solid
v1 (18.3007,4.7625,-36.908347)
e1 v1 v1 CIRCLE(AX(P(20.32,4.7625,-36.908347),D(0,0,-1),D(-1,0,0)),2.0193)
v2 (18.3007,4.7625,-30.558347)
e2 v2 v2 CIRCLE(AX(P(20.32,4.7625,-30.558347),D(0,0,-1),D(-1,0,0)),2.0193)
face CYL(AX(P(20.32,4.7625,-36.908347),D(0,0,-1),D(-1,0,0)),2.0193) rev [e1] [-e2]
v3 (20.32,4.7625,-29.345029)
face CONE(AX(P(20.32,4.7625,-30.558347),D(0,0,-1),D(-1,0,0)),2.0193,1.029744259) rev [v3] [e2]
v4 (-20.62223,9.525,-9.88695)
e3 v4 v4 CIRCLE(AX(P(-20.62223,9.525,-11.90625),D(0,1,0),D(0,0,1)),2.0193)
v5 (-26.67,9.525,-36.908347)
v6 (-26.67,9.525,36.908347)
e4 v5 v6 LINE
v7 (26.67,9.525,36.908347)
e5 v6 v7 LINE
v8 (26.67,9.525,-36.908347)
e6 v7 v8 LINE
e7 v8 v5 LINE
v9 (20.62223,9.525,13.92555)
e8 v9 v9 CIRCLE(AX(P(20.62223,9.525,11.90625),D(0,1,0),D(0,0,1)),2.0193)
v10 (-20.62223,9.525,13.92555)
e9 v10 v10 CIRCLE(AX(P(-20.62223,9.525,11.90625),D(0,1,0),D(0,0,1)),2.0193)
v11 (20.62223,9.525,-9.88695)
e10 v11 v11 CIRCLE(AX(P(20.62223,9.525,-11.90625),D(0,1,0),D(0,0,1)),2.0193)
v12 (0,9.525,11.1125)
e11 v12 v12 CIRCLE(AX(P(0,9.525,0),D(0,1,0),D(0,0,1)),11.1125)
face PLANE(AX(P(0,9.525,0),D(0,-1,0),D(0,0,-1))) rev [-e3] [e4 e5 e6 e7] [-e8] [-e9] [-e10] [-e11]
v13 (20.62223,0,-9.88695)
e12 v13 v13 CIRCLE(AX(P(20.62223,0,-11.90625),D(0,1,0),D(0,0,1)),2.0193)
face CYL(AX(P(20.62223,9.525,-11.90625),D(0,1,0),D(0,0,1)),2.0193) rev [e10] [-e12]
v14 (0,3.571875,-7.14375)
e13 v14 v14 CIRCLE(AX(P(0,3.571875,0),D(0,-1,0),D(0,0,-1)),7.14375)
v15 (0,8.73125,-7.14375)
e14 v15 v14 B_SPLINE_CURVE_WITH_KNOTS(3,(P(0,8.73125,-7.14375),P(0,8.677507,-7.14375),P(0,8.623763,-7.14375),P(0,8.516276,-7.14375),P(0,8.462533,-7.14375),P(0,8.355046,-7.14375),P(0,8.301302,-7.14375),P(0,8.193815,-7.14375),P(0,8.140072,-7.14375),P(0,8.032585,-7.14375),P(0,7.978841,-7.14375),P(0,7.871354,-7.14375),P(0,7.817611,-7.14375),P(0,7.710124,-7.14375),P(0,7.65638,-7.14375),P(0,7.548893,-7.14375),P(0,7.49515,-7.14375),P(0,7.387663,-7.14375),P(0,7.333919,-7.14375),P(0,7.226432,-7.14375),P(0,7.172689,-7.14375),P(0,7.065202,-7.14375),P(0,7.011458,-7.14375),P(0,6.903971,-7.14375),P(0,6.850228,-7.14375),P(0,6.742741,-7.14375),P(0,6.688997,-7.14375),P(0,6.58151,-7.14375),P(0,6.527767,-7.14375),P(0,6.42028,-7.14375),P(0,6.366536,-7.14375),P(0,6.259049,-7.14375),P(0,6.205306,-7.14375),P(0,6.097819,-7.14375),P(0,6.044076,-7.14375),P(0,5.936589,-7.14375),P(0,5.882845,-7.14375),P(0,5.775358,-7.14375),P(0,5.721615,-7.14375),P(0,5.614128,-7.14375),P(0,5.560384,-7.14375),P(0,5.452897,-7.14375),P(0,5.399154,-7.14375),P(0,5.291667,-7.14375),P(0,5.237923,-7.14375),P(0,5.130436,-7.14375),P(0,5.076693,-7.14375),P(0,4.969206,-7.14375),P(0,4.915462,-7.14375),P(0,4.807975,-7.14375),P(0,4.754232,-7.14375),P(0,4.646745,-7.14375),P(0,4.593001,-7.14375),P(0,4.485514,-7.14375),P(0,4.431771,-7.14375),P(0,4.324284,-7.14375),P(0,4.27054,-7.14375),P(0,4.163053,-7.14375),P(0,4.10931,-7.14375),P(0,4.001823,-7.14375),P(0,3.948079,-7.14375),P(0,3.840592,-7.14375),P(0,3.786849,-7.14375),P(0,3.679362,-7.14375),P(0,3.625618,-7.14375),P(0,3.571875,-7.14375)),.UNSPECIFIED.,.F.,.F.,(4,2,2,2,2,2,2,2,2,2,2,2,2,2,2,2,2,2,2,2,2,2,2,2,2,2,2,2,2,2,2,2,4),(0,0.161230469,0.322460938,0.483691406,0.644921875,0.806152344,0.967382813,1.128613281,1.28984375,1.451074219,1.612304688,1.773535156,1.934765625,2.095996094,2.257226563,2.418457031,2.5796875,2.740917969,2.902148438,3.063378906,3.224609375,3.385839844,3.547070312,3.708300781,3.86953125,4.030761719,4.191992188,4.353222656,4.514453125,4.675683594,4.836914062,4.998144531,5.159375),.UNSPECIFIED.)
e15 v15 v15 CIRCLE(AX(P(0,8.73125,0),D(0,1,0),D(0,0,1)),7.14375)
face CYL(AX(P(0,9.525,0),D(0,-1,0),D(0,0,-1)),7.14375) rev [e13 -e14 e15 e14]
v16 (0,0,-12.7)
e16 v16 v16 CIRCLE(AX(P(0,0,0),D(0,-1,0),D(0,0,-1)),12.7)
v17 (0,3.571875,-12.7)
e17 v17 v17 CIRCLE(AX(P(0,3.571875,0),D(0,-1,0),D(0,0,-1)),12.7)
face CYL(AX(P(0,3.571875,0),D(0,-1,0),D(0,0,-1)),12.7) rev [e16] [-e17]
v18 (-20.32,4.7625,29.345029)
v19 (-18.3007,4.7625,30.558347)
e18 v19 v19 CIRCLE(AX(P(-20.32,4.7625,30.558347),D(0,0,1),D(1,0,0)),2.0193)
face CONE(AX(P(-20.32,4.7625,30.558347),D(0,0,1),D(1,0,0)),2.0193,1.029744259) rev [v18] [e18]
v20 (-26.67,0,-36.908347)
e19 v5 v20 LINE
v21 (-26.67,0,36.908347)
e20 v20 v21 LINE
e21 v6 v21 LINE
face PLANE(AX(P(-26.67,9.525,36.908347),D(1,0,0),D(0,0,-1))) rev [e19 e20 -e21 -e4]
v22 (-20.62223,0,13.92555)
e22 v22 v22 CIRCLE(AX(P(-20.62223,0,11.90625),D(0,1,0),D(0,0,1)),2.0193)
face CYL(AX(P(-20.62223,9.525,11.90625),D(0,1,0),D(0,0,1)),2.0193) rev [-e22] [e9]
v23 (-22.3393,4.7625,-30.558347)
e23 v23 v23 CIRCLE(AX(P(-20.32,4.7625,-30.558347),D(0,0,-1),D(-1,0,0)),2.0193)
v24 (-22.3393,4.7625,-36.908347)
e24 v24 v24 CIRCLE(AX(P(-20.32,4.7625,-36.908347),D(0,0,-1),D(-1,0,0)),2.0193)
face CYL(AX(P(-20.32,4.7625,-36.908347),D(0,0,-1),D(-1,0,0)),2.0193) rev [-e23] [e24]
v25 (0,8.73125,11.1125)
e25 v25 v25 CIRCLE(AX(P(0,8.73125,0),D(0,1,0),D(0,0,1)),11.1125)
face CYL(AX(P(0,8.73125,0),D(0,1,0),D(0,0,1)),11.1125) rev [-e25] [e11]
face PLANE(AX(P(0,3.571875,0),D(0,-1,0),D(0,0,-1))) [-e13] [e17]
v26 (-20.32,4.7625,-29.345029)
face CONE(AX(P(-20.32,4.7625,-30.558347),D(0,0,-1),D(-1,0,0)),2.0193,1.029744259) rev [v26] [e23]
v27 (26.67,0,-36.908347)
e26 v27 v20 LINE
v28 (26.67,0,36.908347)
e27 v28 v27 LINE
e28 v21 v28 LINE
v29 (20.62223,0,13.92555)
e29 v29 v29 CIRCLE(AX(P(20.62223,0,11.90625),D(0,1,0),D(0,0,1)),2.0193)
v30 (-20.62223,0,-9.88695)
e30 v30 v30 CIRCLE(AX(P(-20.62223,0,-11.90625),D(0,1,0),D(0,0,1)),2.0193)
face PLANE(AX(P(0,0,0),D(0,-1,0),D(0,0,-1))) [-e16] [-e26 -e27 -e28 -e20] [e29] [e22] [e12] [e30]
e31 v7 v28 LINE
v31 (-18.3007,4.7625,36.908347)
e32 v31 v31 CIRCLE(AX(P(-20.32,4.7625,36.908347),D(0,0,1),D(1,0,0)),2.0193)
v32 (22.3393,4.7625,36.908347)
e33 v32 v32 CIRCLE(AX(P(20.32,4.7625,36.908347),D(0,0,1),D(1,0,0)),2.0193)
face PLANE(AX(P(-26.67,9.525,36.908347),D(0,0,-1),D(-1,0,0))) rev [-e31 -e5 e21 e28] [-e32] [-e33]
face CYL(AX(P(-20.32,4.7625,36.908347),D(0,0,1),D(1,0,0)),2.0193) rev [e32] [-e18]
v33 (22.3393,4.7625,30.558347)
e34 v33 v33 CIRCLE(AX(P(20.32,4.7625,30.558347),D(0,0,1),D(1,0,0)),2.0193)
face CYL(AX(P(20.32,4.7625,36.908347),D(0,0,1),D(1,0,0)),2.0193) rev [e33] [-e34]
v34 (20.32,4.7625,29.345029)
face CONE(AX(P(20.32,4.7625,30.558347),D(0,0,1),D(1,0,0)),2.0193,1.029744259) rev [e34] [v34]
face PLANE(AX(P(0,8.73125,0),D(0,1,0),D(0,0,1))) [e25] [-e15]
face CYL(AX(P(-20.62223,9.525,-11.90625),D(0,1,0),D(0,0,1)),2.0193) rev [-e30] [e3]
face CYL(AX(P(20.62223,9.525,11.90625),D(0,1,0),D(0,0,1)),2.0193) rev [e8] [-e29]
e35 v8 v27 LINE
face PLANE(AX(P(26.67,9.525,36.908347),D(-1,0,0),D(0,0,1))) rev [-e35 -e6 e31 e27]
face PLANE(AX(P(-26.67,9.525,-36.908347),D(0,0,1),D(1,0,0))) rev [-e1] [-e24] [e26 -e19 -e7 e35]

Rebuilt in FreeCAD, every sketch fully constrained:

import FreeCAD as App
import Part
import Sketcher
Q = App.Units.Quantity


def add_polygon(sketch, points):
    """Adds a closed chain of lines whose ends are joined by coincident constraints."""
    first, n = sketch.GeometryCount, len(points)
    for a, b in zip(points, points[1:] + points[:1]):
        sketch.addGeometry(Part.LineSegment(App.Vector(*a, 0), App.Vector(*b, 0)), False)
    for i in range(n):
        sketch.addConstraint(Sketcher.Constraint("Coincident", first + i, 2, first + (i + 1) % n, 1))

doc = App.newDocument("Part")
body = doc.addObject("PartDesign::Body", "Body")

# Sketch on XZ plane
sketch1 = body.newObject("Sketcher::SketchObject", "Sketch")
sketch1.AttachmentSupport = (doc.getObject("XZ_Plane"), [""])
sketch1.MapMode = "FlatFace"
add_polygon(sketch1, [(-27, -37), (-27, 37), (27, 37), (27, -37)])  # lines 0-3
sketch1.addGeometry(Part.Circle(App.Vector(0, 0, 0), App.Vector(0, 0, 1), 7), False)  # 4
sketch1.addConstraint(Sketcher.Constraint("Vertical", 0))
sketch1.addConstraint(Sketcher.Constraint("Horizontal", 1))
sketch1.addConstraint(Sketcher.Constraint("Vertical", 2))
sketch1.addConstraint(Sketcher.Constraint("Horizontal", 3))
sketch1.addConstraint(Sketcher.Constraint("Coincident", 4, 3, -1, 1))
sketch1.addConstraint(Sketcher.Constraint("Symmetric", 0, 2, 2, 2, -1, 1))
sketch1.addConstraint(Sketcher.Constraint("Diameter", 4, Q("0.5625 in")))
sketch1.addConstraint(Sketcher.Constraint("DistanceX", 1, 1, 1, 2, Q("2.1 in")))
sketch1.addConstraint(Sketcher.Constraint("DistanceY", 0, 1, 0, 2, 73.816695))
pad1 = body.newObject("PartDesign::Pad", "Pad")
pad1.Profile = sketch1
pad1.Length = Q("0.375 in")
pad1.Reversed = True

# Sketch on XZ plane
sketch2 = body.newObject("Sketcher::SketchObject", "Sketch001")
sketch2.AttachmentSupport = (doc.getObject("XZ_Plane"), [""])
sketch2.MapMode = "FlatFace"
sketch2.AttachmentOffset = App.Placement(App.Vector(0, 0, -0.375 * 25.4), App.Rotation())
sketch2.addGeometry(Part.Circle(App.Vector(0, 0, 0), App.Vector(0, 0, 1), 11), False)
sketch2.addConstraint(Sketcher.Constraint("Coincident", 0, 3, -1, 1))
sketch2.addConstraint(Sketcher.Constraint("Diameter", 0, Q("0.875 in")))
pocket1 = body.newObject("PartDesign::Pocket", "Pocket")
pocket1.Profile = sketch2
pocket1.Length = Q("0.03125 in")
pocket1.Reversed = True

# Sketch on XZ plane
sketch3 = body.newObject("Sketcher::SketchObject", "Sketch002")
sketch3.AttachmentSupport = (doc.getObject("XZ_Plane"), [""])
sketch3.MapMode = "FlatFace"
sketch3.addGeometry(Part.Circle(App.Vector(0, 0, 0), App.Vector(0, 0, 1), 13), False)
sketch3.addConstraint(Sketcher.Constraint("Coincident", 0, 3, -1, 1))
sketch3.addConstraint(Sketcher.Constraint("Diameter", 0, Q("1 in")))
pocket2 = body.newObject("PartDesign::Pocket", "Pocket001")
pocket2.Profile = sketch3
pocket2.Length = Q("0.140625 in")

# Sketch on YZ plane
sketch4 = body.newObject("Sketcher::SketchObject", "Sketch003")
sketch4.AttachmentSupport = (doc.getObject("YZ_Plane"), [""])
sketch4.MapMode = "FlatFace"
sketch4.AttachmentOffset = App.Placement(App.Vector(0, 0, -0.8 * 25.4), App.Rotation())
add_polygon(sketch4, [(4.8, 29.3), (4.8, 36.9), (2.7, 36.9), (2.7, 30.6)])  # lines 0-3
sketch4.addGeometry(Part.LineSegment(App.Vector(4.8, 36.9, 0), App.Vector(4.8, 29.3, 0)), True)  # axis
sketch4.addConstraint(Sketcher.Constraint("Vertical", 0))
sketch4.addConstraint(Sketcher.Constraint("Horizontal", 1))
sketch4.addConstraint(Sketcher.Constraint("Vertical", 2))
sketch4.addConstraint(Sketcher.Constraint("Vertical", 4))
sketch4.addConstraint(Sketcher.Constraint("Coincident", 4, 1, 0, 2))
sketch4.addConstraint(Sketcher.Constraint("Equal", 0, 4))
sketch4.addConstraint(Sketcher.Constraint("Angle", 3, Q("-31 deg")))
sketch4.addConstraint(Sketcher.Constraint("DistanceY", 2, 2, 2, 1, Q("0.25 in")))
sketch4.addConstraint(Sketcher.Constraint("DistanceX", 1, 2, 1, 1, Q("0.0795 in")))
sketch4.addConstraint(Sketcher.Constraint("DistanceX", -1, 1, 0, 2, Q("0.1875 in")))
sketch4.addConstraint(Sketcher.Constraint("DistanceY", -1, 1, 3, 2, 29.345029))
groove = body.newObject("PartDesign::Groove", "Groove")
groove.Profile = sketch4
groove.ReferenceAxis = (sketch4, ["Axis0"])
groove.Angle = 360
doc.recompute()

linearpattern = body.newObject("PartDesign::LinearPattern", "LinearPattern")
linearpattern.Originals = [groove]
linearpattern.Direction = (doc.getObject("X_Axis"), [""])
linearpattern.Mode = "offset"
linearpattern.Offset = Q("1.6 in")
linearpattern.Occurrences = 2
body.Tip = linearpattern
doc.recompute()

mirrored = body.newObject("PartDesign::Mirrored", "Mirrored")
mirrored.Originals = [groove]
mirrored.MirrorPlane = (doc.getObject("XY_Plane"), [""])
body.Tip = mirrored

# Sketch on YZ plane
sketch5 = body.newObject("Sketcher::SketchObject", "Sketch004")
sketch5.AttachmentSupport = (doc.getObject("YZ_Plane"), [""])
sketch5.MapMode = "FlatFace"
sketch5.AttachmentOffset = App.Placement(App.Vector(0, 0, 0.8 * 25.4), App.Rotation())
add_polygon(sketch5, [(4.8, -36.9), (4.8, -29.3), (2.7, -30.6), (2.7, -36.9)])  # lines 0-3
sketch5.addGeometry(Part.LineSegment(App.Vector(4.8, -29.3, 0), App.Vector(4.8, -36.9, 0)), True)  # axis
sketch5.addConstraint(Sketcher.Constraint("Vertical", 0))
sketch5.addConstraint(Sketcher.Constraint("Vertical", 2))
sketch5.addConstraint(Sketcher.Constraint("Horizontal", 3))
sketch5.addConstraint(Sketcher.Constraint("Vertical", 4))
sketch5.addConstraint(Sketcher.Constraint("Coincident", 4, 1, 0, 2))
sketch5.addConstraint(Sketcher.Constraint("Horizontal", 2, 2, 4, 2))
sketch5.addConstraint(Sketcher.Constraint("Angle", 1, Q("-149 deg")))
sketch5.addConstraint(Sketcher.Constraint("DistanceY", 2, 2, 2, 1, Q("0.25 in")))
sketch5.addConstraint(Sketcher.Constraint("DistanceX", 3, 1, 3, 2, Q("0.0795 in")))
sketch5.addConstraint(Sketcher.Constraint("DistanceX", -1, 1, 0, 2, Q("0.1875 in")))
sketch5.addConstraint(Sketcher.Constraint("DistanceY", 0, 2, -1, 1, 29.345029))
groove2 = body.newObject("PartDesign::Groove", "Groove001")
groove2.Profile = sketch5
groove2.ReferenceAxis = (sketch5, ["Axis0"])
groove2.Angle = 360

# Sketch on XZ plane
sketch6 = body.newObject("Sketcher::SketchObject", "Sketch005")
sketch6.AttachmentSupport = (doc.getObject("XZ_Plane"), [""])
sketch6.MapMode = "FlatFace"
sketch6.AttachmentOffset = App.Placement(App.Vector(0, 0, -0.375 * 25.4), App.Rotation())
sketch6.addGeometry(Part.Circle(App.Vector(-20.6, -11.9, 0), App.Vector(0, 0, 1), 2), False)
sketch6.addGeometry(Part.Circle(App.Vector(-20.6, 11.9, 0), App.Vector(0, 0, 1), 2), False)
sketch6.addGeometry(Part.Circle(App.Vector(20.6, 11.9, 0), App.Vector(0, 0, 1), 2), False)
sketch6.addGeometry(Part.Circle(App.Vector(20.6, -11.9, 0), App.Vector(0, 0, 1), 2), False)
sketch6.addConstraint(Sketcher.Constraint("Equal", 0, 1))
sketch6.addConstraint(Sketcher.Constraint("Equal", 1, 2))
sketch6.addConstraint(Sketcher.Constraint("Equal", 2, 3))
sketch6.addConstraint(Sketcher.Constraint("Symmetric", 0, 3, 2, 3, -1, 1))
sketch6.addConstraint(Sketcher.Constraint("Symmetric", 1, 3, 3, 3, -1, 1))
sketch6.addConstraint(Sketcher.Constraint("Symmetric", 1, 3, 2, 3, -2))
sketch6.addConstraint(Sketcher.Constraint("Diameter", 0, Q("0.159 in")))
sketch6.addConstraint(Sketcher.Constraint("DistanceY", 0, 3, -1, 1, Q("0.46875 in")))
sketch6.addConstraint(Sketcher.Constraint("DistanceX", 0, 3, -1, 1, 20.62223))
doc.recompute()
hole = body.newObject("PartDesign::Hole", "Hole")
hole.Profile = sketch6
hole.ThreadType = "None"
hole.Diameter = Q("0.159 in")
hole.DepthType = "ThroughAll"
hole.Reversed = True

doc.recompute()
